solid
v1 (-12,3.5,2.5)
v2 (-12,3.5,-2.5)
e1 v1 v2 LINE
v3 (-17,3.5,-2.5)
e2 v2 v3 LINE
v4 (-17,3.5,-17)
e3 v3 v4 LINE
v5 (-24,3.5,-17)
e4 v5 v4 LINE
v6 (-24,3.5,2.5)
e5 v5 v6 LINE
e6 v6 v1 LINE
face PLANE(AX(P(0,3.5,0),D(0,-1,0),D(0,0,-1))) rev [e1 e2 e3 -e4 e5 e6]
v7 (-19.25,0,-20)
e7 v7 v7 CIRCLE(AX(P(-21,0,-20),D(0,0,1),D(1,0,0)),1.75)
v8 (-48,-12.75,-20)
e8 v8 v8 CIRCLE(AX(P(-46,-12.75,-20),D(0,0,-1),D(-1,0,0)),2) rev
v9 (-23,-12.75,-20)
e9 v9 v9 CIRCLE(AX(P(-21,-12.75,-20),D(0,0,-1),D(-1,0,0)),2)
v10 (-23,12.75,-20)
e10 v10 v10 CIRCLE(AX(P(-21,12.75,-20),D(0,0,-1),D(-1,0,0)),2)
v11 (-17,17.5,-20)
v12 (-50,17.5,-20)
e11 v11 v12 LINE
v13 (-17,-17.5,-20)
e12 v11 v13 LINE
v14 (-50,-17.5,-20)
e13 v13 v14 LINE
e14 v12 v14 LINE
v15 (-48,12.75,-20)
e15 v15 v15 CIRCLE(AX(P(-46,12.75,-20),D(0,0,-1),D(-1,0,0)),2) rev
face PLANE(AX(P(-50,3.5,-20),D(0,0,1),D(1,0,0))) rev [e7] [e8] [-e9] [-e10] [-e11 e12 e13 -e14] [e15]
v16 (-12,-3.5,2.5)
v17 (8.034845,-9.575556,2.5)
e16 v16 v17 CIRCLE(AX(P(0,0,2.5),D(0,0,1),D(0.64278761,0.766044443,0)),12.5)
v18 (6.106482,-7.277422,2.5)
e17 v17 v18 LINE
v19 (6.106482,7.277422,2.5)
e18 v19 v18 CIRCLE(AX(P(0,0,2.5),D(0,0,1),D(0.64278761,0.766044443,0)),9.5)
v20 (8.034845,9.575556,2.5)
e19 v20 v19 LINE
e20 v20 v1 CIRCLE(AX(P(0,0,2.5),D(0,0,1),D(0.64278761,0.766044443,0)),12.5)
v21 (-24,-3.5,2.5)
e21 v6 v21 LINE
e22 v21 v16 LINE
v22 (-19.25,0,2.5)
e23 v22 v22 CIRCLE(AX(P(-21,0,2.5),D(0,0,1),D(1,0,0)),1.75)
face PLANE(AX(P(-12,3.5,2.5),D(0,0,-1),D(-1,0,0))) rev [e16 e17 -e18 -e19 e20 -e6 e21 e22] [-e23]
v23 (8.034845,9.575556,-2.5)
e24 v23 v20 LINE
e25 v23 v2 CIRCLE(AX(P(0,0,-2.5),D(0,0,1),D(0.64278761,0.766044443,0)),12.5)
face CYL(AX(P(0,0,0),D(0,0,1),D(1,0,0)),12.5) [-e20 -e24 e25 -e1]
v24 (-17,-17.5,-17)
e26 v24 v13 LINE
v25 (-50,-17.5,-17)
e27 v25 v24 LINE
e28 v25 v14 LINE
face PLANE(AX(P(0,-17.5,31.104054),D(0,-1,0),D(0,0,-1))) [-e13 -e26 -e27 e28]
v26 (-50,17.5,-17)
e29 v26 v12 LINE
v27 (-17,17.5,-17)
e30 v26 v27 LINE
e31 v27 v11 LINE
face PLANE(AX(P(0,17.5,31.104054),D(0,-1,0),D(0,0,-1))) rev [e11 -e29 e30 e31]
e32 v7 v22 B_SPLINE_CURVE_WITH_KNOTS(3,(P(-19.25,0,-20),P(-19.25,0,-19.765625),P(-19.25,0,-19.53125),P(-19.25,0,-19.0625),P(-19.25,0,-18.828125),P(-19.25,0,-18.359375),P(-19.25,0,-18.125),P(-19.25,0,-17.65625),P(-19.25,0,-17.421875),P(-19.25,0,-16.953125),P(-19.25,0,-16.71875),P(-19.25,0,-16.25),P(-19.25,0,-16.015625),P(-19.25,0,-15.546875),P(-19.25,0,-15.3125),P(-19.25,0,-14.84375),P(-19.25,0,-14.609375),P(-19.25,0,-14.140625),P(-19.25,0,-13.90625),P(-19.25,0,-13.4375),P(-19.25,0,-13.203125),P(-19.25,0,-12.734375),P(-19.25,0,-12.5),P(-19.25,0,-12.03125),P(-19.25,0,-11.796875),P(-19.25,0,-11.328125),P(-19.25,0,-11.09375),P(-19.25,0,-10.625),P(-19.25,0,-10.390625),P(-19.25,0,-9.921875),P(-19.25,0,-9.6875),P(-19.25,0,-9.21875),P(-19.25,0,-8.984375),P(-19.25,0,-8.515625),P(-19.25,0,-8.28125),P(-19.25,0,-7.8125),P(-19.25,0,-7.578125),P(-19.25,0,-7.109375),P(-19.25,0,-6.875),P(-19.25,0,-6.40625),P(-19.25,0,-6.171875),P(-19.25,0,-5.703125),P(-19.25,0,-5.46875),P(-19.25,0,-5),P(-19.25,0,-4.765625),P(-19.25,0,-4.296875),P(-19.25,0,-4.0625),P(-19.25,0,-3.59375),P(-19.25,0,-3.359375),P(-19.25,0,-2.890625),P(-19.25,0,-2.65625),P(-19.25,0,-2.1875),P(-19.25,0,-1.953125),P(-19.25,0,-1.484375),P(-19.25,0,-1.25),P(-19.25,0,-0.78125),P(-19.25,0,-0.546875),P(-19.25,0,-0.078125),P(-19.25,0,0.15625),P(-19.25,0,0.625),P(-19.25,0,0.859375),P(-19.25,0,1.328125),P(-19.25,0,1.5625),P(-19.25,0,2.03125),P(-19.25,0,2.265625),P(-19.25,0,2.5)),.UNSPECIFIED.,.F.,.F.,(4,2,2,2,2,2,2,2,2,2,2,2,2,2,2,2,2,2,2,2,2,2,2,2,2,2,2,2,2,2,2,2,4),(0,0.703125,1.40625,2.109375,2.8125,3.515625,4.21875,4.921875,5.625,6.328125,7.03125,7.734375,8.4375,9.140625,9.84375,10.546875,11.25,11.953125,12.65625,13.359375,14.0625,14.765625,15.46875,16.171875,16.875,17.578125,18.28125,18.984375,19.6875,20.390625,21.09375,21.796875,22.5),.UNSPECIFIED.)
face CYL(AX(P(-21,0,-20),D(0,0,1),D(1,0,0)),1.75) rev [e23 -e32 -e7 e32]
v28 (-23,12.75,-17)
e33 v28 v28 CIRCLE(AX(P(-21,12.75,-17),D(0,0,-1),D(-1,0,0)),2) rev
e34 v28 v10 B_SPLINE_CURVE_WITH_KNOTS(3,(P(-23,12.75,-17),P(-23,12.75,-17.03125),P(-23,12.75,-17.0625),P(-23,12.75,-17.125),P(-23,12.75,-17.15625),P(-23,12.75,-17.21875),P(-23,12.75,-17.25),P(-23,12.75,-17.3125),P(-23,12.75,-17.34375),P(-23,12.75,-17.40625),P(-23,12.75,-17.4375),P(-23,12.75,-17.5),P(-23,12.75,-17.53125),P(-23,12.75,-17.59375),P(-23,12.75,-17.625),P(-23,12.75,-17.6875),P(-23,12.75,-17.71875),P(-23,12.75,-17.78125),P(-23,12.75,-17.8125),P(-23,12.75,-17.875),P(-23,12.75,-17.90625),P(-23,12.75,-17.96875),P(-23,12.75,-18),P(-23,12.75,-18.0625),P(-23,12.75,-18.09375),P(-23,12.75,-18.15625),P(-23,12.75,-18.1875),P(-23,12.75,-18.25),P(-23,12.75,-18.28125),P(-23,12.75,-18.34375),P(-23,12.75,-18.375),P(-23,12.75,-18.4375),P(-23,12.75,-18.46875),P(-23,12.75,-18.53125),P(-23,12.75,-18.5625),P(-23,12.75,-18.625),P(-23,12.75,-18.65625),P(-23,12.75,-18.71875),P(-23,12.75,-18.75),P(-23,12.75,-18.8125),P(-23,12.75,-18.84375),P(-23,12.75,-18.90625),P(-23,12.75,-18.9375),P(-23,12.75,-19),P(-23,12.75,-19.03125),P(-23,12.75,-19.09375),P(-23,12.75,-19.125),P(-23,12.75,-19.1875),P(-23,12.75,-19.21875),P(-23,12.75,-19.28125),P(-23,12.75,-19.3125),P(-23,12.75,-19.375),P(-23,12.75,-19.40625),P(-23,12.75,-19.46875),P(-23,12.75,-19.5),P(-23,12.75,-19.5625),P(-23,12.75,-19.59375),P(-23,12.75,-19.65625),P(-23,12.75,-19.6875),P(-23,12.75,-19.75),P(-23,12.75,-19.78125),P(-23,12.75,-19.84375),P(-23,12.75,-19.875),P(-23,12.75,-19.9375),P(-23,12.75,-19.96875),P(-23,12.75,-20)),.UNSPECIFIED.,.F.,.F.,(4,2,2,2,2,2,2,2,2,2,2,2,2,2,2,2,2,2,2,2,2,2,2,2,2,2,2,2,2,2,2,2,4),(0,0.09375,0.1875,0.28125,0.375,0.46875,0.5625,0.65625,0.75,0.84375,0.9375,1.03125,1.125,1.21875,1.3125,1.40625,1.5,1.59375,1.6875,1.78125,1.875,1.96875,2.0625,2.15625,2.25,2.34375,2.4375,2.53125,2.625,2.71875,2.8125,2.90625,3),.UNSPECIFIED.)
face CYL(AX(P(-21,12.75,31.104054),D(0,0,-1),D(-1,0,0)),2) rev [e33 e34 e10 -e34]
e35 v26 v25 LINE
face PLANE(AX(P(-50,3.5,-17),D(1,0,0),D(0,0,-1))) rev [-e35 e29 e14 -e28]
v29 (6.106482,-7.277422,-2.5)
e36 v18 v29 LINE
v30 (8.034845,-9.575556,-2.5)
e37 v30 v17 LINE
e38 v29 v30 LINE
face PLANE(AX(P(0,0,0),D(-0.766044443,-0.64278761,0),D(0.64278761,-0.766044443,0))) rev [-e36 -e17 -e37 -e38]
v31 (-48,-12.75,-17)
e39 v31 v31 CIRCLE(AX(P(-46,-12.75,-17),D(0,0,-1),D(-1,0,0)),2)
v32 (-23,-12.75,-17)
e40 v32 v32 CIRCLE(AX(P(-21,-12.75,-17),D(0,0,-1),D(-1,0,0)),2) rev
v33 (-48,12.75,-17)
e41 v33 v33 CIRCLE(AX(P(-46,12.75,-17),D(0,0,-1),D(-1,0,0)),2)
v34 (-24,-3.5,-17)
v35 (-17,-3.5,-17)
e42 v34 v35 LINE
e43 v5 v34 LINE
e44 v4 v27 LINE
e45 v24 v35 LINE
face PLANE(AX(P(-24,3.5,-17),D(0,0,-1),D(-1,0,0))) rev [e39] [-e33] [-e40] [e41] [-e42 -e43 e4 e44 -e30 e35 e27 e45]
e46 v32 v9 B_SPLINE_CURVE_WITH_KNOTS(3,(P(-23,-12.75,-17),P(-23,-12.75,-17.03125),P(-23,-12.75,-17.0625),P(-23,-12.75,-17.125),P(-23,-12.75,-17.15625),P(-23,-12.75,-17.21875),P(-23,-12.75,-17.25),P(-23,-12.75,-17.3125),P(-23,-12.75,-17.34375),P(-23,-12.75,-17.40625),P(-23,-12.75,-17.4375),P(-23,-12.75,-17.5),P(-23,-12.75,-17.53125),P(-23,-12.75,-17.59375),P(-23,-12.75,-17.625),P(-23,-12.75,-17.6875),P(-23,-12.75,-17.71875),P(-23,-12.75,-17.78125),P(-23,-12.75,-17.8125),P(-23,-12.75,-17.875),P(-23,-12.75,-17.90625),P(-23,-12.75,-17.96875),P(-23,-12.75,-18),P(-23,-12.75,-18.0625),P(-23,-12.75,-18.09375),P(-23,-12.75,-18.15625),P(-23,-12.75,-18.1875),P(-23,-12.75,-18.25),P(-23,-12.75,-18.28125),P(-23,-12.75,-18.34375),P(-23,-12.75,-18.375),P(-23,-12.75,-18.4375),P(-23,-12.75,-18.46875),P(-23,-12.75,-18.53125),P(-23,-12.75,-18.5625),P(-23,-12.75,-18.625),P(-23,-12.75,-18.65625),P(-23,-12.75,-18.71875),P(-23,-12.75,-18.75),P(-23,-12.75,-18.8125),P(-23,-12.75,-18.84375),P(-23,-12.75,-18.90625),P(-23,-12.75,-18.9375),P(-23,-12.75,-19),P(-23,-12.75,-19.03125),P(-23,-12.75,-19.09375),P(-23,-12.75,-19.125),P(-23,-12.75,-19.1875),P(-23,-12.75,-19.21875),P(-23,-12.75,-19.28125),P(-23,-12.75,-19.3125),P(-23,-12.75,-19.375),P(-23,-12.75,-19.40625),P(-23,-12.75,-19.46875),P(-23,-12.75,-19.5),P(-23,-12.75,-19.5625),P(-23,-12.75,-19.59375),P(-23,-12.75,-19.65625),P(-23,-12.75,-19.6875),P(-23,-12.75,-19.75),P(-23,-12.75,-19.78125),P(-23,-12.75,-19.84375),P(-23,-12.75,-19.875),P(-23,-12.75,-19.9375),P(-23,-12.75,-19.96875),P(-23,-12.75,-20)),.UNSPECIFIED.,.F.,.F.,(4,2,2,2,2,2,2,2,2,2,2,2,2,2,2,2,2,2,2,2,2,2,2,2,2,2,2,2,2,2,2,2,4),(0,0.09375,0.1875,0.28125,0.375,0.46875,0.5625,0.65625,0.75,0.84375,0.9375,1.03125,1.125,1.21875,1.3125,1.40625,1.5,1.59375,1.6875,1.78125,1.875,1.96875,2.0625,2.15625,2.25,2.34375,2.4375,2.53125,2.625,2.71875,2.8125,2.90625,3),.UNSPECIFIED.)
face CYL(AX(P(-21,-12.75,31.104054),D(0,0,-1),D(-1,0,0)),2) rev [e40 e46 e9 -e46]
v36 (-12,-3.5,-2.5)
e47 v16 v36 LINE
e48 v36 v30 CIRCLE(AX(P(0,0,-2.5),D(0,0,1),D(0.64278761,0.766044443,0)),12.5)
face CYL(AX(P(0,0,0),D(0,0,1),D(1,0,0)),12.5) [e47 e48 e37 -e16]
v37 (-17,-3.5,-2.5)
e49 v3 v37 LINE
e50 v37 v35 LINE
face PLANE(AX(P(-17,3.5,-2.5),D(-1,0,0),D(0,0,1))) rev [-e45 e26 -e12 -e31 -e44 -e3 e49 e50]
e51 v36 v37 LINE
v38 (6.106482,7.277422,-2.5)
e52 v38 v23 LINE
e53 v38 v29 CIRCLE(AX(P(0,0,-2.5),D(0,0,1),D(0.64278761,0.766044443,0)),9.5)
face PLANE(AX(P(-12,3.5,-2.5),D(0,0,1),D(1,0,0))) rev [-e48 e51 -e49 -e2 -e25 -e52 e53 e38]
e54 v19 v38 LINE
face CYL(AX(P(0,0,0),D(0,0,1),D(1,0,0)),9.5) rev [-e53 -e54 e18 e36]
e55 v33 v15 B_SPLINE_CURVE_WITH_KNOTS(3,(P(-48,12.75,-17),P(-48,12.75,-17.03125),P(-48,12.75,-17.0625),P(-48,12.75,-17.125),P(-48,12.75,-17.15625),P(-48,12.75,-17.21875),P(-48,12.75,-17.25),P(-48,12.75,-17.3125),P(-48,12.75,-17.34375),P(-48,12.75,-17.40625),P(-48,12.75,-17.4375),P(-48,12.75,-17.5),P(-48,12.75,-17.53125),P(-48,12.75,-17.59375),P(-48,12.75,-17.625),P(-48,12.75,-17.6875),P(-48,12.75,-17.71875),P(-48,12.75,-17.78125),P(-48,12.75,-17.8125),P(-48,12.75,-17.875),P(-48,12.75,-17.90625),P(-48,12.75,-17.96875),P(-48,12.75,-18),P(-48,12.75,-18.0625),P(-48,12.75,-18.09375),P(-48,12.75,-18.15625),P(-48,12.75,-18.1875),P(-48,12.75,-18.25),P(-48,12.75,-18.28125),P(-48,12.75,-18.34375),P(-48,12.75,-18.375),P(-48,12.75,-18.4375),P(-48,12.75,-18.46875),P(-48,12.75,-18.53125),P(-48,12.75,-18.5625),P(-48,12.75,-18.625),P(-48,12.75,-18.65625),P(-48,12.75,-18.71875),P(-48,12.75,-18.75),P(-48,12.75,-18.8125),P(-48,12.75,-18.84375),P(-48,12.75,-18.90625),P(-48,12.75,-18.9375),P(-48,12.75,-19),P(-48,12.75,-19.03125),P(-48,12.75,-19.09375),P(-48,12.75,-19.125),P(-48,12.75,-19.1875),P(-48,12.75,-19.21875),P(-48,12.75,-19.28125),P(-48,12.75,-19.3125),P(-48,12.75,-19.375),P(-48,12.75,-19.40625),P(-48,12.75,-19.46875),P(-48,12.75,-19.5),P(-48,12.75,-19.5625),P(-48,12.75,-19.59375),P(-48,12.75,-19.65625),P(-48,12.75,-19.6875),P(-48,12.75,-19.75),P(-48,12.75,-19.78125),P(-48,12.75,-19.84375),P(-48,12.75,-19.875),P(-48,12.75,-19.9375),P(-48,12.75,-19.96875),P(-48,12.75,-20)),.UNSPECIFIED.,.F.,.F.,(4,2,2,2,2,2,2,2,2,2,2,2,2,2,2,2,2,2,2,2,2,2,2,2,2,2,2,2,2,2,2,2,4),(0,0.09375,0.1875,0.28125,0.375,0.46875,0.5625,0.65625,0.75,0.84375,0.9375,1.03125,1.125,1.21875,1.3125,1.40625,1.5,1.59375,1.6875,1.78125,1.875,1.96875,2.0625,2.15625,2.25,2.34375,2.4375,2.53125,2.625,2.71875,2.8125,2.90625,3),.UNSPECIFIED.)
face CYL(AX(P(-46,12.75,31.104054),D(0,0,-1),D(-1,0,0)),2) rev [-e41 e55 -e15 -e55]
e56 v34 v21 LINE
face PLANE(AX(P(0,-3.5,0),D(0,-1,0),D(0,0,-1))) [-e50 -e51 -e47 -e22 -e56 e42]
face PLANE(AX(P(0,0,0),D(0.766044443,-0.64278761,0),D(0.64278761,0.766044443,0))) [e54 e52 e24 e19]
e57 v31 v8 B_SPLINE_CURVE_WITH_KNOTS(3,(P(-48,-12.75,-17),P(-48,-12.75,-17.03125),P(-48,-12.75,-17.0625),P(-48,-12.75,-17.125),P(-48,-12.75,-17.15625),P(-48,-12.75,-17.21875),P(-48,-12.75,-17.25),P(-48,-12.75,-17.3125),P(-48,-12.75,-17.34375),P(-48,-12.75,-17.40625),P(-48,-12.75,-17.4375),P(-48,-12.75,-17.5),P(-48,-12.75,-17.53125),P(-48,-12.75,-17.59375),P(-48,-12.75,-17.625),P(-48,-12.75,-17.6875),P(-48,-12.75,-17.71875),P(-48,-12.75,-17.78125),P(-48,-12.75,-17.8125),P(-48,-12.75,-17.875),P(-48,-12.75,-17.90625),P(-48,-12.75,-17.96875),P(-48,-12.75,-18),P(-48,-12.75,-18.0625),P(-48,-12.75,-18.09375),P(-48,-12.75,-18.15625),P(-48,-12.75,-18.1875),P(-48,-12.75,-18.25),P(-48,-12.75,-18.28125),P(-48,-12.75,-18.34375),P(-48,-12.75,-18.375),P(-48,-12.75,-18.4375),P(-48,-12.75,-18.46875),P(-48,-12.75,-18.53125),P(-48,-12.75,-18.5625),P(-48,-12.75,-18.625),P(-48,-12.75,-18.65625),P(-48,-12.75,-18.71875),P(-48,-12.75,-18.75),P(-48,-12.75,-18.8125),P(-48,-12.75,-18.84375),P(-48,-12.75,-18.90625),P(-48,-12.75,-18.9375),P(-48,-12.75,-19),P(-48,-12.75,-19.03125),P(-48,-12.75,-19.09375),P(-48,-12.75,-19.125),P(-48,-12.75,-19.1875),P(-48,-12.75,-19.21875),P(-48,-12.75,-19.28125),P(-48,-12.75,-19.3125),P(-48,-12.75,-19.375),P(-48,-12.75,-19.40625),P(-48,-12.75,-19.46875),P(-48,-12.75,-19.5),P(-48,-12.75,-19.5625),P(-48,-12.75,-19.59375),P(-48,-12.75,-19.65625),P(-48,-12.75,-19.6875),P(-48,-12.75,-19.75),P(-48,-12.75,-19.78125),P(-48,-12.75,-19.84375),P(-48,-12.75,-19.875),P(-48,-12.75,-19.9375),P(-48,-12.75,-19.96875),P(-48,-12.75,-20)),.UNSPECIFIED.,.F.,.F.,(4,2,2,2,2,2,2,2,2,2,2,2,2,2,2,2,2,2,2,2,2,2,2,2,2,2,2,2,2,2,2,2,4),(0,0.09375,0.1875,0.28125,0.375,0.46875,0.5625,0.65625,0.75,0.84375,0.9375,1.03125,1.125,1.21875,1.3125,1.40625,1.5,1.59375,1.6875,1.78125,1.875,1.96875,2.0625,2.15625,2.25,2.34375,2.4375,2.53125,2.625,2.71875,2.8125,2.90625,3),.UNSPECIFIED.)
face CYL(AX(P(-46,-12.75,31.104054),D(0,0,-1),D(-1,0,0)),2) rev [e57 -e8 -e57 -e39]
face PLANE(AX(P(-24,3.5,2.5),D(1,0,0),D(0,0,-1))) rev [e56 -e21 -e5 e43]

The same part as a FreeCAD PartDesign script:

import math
import FreeCAD as App
import Part
import Sketcher
from FreeCAD import Vector
Q = App.Units.Quantity


def add_polygon(sketch, points):
    """Adds a closed chain of lines whose ends are joined by coincident constraints."""
    first, n = sketch.GeometryCount, len(points)
    for a, b in zip(points, points[1:] + points[:1]):
        sketch.addGeometry(Part.LineSegment(App.Vector(*a, 0), App.Vector(*b, 0)), False)
    for i in range(n):
        sketch.addConstraint(Sketcher.Constraint("Coincident", first + i, 2, first + (i + 1) % n, 1))

doc = App.newDocument("Part")
body = doc.addObject("PartDesign::Body", "Body")

# Sketch on XZ plane
sketch1 = doc.addObject("Sketcher::SketchObject", "Sketch")
body.addObject(sketch1)
sketch1.AttachmentSupport = (doc.XZ_Plane, [""])
sketch1.MapMode = "FlatFace"
add_polygon(sketch1, [(-12, -2.5), (-17, -2.5), (-17, -20), (-50, -20), (-50, -17), (-24, -17), (-24, 2.5), (-12, 2.5)])  # lines 0-7
sketch1.addConstraint([
    Sketcher.Constraint("Horizontal", 0),
    Sketcher.Constraint("Vertical", 1),
    Sketcher.Constraint("Horizontal", 2),
    Sketcher.Constraint("Vertical", 3),
    Sketcher.Constraint("Horizontal", 4),
    Sketcher.Constraint("Vertical", 5),
    Sketcher.Constraint("Horizontal", 6),
    Sketcher.Constraint("Vertical", 7),
    Sketcher.Constraint("Equal", 0, 7),
    Sketcher.Constraint("DistanceX", 0, 2, 0, 1, Q("5 mm")),
    Sketcher.Constraint("DistanceX", 2, 2, 2, 1, Q("33 mm")),
    Sketcher.Constraint("DistanceX", 4, 1, 4, 2, Q("26 mm")),
    Sketcher.Constraint("DistanceY", 3, 1, 3, 2, Q("3 mm")),
    Sketcher.Constraint("DistanceY", 1, 2, 1, 1, Q("17.5 mm")),
    Sketcher.Constraint("DistanceX", 0, 2, -1, 1, Q("17 mm")),
    Sketcher.Constraint("DistanceY", 1, 2, -1, 1, Q("20 mm")),
])
pad1 = doc.addObject("PartDesign::Pad", "Pad")
body.addObject(pad1)
pad1.Profile = sketch1
pad1.Length = 7
pad1.Midplane = True

# Sketch on XY plane
sketch2 = doc.addObject("Sketcher::SketchObject", "Sketch001")
body.addObject(sketch2)
sketch2.AttachmentSupport = (doc.XY_Plane, [""])
sketch2.MapMode = "FlatFace"
sketch2.AttachmentOffset = App.Placement(Vector(0, 0, -20), App.Rotation())
add_polygon(sketch2, [(-17, -17.5), (-50, -17.5), (-50, 17.5), (-17, 17.5)])  # lines 0-3
sketch2.addGeometry(Part.Circle(Vector(-21, -12.8, 0), Vector(0, 0, 1), 2), False)  # 4
sketch2.addGeometry(Part.Circle(Vector(-46, -12.8, 0), Vector(0, 0, 1), 2), False)  # 5
sketch2.addGeometry(Part.Circle(Vector(-46, 12.8, 0), Vector(0, 0, 1), 2), False)  # 6
sketch2.addGeometry(Part.Circle(Vector(-21, 12.8, 0), Vector(0, 0, 1), 2), False)  # 7
sketch2.addConstraint([
    Sketcher.Constraint("Horizontal", 0),
    Sketcher.Constraint("Vertical", 1),
    Sketcher.Constraint("Horizontal", 2),
    Sketcher.Constraint("Vertical", 3),
    Sketcher.Constraint("Equal", 4, 5),
    Sketcher.Constraint("Equal", 5, 6),
    Sketcher.Constraint("Equal", 6, 7),
    Sketcher.Constraint("Symmetric", 5, 3, 6, 3, -1),
    Sketcher.Constraint("Symmetric", 4, 3, 7, 3, -1),
    Sketcher.Constraint("Horizontal", 4, 3, 5, 3),
    Sketcher.Constraint("Diameter", 4, Q("4 mm")),
    Sketcher.Constraint("DistanceX", 0, 2, 0, 1, Q("33 mm")),
    Sketcher.Constraint("DistanceY", 1, 1, 1, 2, Q("35 mm")),
    Sketcher.Constraint("DistanceX", 4, 3, -1, 1, Q("21 mm")),
    Sketcher.Constraint("DistanceX", 5, 3, -1, 1, Q("46 mm")),
    Sketcher.Constraint("DistanceX", 0, 2, -1, 1, Q("50 mm")),
    Sketcher.Constraint("DistanceY", 0, 2, -1, 1, Q("17.5 mm")),
    Sketcher.Constraint("DistanceY", 5, 3, 6, 3, Q("25.5 mm")),
])
pad2 = doc.addObject("PartDesign::Pad", "Pad001")
body.addObject(pad2)
pad2.Profile = sketch2
pad2.Length = 3

# Sketch on XY plane
sketch3 = doc.addObject("Sketcher::SketchObject", "Sketch002")
body.addObject(sketch3)
sketch3.AttachmentSupport = (doc.XY_Plane, [""])
sketch3.MapMode = "FlatFace"
sketch3.AttachmentOffset = App.Placement(Vector(0, 0, 2.5), App.Rotation())
sketch3.addGeometry(Part.Circle(Vector(-21, 0, 0), Vector(0, 0, 1), 1.8), False)
sketch3.addConstraint([
    Sketcher.Constraint("PointOnObject", 0, 3, -1),
    Sketcher.Constraint("Diameter", 0, Q("3.5 mm")),
    Sketcher.Constraint("DistanceX", 0, 3, -1, 1, Q("21 mm")),
])
pocket1 = doc.addObject("PartDesign::Pocket", "Pocket")
body.addObject(pocket1)
pocket1.Profile = sketch3
pocket1.Type = "ThroughAll"

# Sketch on an angled plane
sketch4 = doc.addObject("Sketcher::SketchObject", "Sketch003")
body.addObject(sketch4)
sketch4.Placement = App.Placement(Vector(8.034845, -9.575556, 2.5), App.Rotation(Vector(-0.330711497, 0.394126614, -0.857492926), Vector(-0.551185828, 0.656877691, 0.514495755), Vector(0.766044443, 0.64278761, 0), "ZXY"))
add_polygon(sketch4, [(1.5, 2.6), (0, 0), (4.3, -2.6), (5.8, 0)])  # lines 0-3
sketch4.addConstraint([
    Sketcher.Constraint("Coincident", 0, 2, -1, 1),
    Sketcher.Constraint("PointOnObject", 2, 2, -1),
    Sketcher.Constraint("Perpendicular", 0, 1),
    Sketcher.Constraint("Perpendicular", 1, 2),
    Sketcher.Constraint("Perpendicular", 2, 3),
    Sketcher.Constraint("Distance", 0, Q("3 mm")),
    Sketcher.Constraint("Distance", 1, Q("5 mm")),
])

# Sketch on XY plane
sketch5 = doc.addObject("Sketcher::SketchObject", "Sketch004")
body.addObject(sketch5)
sketch5.AttachmentSupport = (doc.XY_Plane, [""])
sketch5.MapMode = "FlatFace"
sketch5.addGeometry(Part.ArcOfCircle(Part.Circle(Vector(0, 0, 0), Vector(0, 0, 1), 11), math.radians(50), math.radians(310)), False)
sketch5.addConstraint([
    Sketcher.Constraint("Coincident", 0, 3, -1, 1),
    Sketcher.Constraint("Radius", 0, Q("11 mm")),
    Sketcher.Constraint("DistanceY", -1, 1, 0, 1, Q("8.426489 mm")),
    Sketcher.Constraint("DistanceY", 0, 2, -1, 1, Q("8.426489 mm")),
])
doc.recompute()

additivepipe = doc.addObject("PartDesign::AdditivePipe", "AdditivePipe")
body.addObject(additivepipe)
additivepipe.Profile = sketch4
additivepipe.Spine = (sketch5, ["Edge1"])

doc.recompute()
